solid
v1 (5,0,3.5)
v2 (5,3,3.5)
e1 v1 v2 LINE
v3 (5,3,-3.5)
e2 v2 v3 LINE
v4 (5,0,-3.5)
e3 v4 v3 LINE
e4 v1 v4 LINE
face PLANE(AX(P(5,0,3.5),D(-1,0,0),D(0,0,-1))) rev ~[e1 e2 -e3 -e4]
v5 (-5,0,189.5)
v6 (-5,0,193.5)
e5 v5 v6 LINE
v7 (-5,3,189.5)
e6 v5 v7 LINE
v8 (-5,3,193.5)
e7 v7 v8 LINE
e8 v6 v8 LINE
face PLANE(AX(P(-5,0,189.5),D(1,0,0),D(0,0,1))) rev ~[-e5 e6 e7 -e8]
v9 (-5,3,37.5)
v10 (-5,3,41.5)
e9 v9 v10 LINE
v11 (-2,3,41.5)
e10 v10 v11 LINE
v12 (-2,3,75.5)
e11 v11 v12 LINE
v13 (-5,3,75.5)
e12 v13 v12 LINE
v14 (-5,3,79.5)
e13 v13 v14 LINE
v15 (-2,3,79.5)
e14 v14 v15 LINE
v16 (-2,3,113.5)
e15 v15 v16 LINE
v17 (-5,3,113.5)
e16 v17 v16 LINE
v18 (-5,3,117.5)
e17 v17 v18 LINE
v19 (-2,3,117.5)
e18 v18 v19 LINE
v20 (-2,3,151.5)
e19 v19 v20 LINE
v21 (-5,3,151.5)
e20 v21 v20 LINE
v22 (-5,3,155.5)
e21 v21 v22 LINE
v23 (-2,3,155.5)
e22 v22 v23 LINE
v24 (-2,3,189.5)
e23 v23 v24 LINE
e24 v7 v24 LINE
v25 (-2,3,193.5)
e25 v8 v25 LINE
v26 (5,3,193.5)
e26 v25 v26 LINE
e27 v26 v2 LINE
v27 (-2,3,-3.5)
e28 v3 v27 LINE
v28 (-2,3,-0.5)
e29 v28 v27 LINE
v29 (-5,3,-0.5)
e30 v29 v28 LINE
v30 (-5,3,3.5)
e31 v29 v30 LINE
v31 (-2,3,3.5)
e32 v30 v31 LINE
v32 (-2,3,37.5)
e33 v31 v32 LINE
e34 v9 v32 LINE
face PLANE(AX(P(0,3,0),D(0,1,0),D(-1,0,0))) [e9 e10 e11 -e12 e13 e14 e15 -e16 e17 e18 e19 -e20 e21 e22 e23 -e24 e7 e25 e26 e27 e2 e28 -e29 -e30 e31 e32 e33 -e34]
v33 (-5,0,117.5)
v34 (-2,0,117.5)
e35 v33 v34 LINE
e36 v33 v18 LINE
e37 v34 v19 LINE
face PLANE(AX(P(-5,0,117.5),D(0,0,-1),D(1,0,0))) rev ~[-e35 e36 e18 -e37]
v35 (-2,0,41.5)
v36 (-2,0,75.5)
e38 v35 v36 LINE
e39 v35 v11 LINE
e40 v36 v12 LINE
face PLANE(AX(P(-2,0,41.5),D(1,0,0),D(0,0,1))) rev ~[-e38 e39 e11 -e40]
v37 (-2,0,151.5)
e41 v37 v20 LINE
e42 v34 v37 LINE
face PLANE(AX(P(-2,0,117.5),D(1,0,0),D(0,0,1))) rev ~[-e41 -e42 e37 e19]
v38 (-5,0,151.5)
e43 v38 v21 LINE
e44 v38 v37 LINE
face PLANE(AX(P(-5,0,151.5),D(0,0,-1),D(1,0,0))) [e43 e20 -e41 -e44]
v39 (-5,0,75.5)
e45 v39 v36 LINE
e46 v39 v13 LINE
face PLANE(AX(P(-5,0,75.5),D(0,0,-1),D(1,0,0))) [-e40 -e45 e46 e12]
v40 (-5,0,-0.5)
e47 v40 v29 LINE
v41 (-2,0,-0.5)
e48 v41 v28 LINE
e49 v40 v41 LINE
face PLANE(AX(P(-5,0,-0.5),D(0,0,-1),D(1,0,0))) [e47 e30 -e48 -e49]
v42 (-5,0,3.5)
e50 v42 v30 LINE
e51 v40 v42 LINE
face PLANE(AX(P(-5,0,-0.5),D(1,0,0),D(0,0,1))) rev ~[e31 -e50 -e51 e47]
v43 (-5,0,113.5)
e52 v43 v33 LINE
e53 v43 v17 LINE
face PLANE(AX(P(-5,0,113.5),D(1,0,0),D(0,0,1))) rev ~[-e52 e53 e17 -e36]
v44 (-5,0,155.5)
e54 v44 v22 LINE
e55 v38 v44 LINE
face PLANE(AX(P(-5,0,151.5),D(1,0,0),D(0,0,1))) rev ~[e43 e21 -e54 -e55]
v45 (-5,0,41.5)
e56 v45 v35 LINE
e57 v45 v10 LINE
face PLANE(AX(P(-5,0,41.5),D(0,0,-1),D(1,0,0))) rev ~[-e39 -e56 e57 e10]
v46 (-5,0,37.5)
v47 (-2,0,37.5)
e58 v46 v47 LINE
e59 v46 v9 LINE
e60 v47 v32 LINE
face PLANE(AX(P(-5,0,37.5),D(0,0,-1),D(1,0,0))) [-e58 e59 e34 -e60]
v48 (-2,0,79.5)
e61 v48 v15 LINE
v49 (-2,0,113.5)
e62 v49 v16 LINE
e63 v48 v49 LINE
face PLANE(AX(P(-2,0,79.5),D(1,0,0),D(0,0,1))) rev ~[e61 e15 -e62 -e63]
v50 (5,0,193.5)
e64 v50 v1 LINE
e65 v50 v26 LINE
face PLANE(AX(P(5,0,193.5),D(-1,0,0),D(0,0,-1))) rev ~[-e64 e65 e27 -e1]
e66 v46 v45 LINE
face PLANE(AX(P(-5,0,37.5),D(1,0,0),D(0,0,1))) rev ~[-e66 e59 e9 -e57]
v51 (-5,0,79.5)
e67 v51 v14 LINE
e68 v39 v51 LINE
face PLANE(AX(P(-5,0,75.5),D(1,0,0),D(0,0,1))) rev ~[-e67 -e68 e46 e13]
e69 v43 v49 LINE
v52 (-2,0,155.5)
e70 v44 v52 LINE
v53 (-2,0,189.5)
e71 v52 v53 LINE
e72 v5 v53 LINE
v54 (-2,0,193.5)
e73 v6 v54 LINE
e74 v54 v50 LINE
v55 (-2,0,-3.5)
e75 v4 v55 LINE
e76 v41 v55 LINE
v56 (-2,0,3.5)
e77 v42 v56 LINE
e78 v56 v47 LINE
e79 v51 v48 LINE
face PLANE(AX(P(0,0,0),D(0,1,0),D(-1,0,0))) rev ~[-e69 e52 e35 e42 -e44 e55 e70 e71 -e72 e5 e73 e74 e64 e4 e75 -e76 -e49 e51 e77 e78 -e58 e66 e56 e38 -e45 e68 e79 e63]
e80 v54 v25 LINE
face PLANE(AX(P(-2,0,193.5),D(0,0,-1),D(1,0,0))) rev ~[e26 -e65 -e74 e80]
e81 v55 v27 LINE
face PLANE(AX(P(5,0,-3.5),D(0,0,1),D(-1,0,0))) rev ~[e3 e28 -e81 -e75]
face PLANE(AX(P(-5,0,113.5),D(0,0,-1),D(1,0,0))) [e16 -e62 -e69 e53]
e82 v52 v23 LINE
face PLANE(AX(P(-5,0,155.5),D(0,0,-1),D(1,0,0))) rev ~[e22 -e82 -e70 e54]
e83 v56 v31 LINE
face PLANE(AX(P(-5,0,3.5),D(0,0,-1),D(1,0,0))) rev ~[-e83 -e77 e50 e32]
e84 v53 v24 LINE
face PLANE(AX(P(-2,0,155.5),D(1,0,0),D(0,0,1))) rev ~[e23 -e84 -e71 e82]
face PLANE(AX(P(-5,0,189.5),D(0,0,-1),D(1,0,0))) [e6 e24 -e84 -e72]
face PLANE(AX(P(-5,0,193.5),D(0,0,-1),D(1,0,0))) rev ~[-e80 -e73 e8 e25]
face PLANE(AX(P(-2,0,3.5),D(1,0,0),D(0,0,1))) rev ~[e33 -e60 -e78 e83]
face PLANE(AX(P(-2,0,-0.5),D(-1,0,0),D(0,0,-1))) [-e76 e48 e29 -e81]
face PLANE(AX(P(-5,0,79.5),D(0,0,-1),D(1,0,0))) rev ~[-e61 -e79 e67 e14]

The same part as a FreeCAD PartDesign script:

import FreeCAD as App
import Part
import Sketcher
from FreeCAD import Vector
Q = App.Units.Quantity


def add_polygon(sketch, points):
    """Adds a closed chain of lines whose ends are joined by coincident constraints."""
    first, n = sketch.GeometryCount, len(points)
    for a, b in zip(points, points[1:] + points[:1]):
        sketch.addGeometry(Part.LineSegment(App.Vector(*a, 0), App.Vector(*b, 0)), False)
    for i in range(n):
        sketch.addConstraint(Sketcher.Constraint("Coincident", first + i, 2, first + (i + 1) % n, 1))

doc = App.newDocument("Part")
body = doc.addObject("PartDesign::Body", "Body")

# Sketch on XZ plane
sketch1 = body.newObject("Sketcher::SketchObject", "Sketch")
sketch1.AttachmentSupport = (doc.getObject("XZ_Plane"), [""])
sketch1.MapMode = "FlatFace"
add_polygon(sketch1, [(5, 193.5), (5, -3.5), (-2, -3.5), (-2, -0.5), (-5, -0.5), (-5, 3.5), (-2, 3.5), (-2, 37.5), (-5, 37.5), (-5, 41.5), (-2, 41.5), (-2, 75.5), (-5, 75.5), (-5, 79.5), (-2, 79.5), (-2, 113.5), (-5, 113.5), (-5, 117.5), (-2, 117.5), (-2, 151.5), (-5, 151.5), (-5, 155.5), (-2, 155.5), (-2, 189.5), (-5, 189.5), (-5, 193.5)])  # lines 0-25
sketch1.addConstraint(Sketcher.Constraint("Vertical", 0))
sketch1.addConstraint(Sketcher.Constraint("Horizontal", 1))
sketch1.addConstraint(Sketcher.Constraint("Vertical", 2))
sketch1.addConstraint(Sketcher.Constraint("Horizontal", 3))
sketch1.addConstraint(Sketcher.Constraint("Vertical", 4))
sketch1.addConstraint(Sketcher.Constraint("Horizontal", 5))
sketch1.addConstraint(Sketcher.Constraint("Vertical", 6))
sketch1.addConstraint(Sketcher.Constraint("Horizontal", 7))
sketch1.addConstraint(Sketcher.Constraint("Vertical", 8))
sketch1.addConstraint(Sketcher.Constraint("Horizontal", 9))
sketch1.addConstraint(Sketcher.Constraint("Vertical", 10))
sketch1.addConstraint(Sketcher.Constraint("Horizontal", 11))
sketch1.addConstraint(Sketcher.Constraint("Vertical", 12))
sketch1.addConstraint(Sketcher.Constraint("Horizontal", 13))
sketch1.addConstraint(Sketcher.Constraint("Vertical", 14))
sketch1.addConstraint(Sketcher.Constraint("Horizontal", 15))
sketch1.addConstraint(Sketcher.Constraint("Vertical", 16))
sketch1.addConstraint(Sketcher.Constraint("Horizontal", 17))
sketch1.addConstraint(Sketcher.Constraint("Vertical", 18))
sketch1.addConstraint(Sketcher.Constraint("Horizontal", 19))
sketch1.addConstraint(Sketcher.Constraint("Vertical", 20))
sketch1.addConstraint(Sketcher.Constraint("Horizontal", 21))
sketch1.addConstraint(Sketcher.Constraint("Vertical", 22))
sketch1.addConstraint(Sketcher.Constraint("Horizontal", 23))
sketch1.addConstraint(Sketcher.Constraint("Vertical", 24))
sketch1.addConstraint(Sketcher.Constraint("Horizontal", 25))
sketch1.addConstraint(Sketcher.Constraint("Symmetric", 0, 2, 4, 2, -1, 1))
sketch1.addConstraint(Sketcher.Constraint("Vertical", 2, 2, 5, 2))
sketch1.addConstraint(Sketcher.Constraint("Vertical", 4, 2, 7, 2))
sketch1.addConstraint(Sketcher.Constraint("Vertical", 6, 2, 9, 2))
sketch1.addConstraint(Sketcher.Constraint("Vertical", 8, 2, 11, 2))
sketch1.addConstraint(Sketcher.Constraint("Vertical", 10, 2, 13, 2))
sketch1.addConstraint(Sketcher.Constraint("Vertical", 12, 2, 15, 2))
sketch1.addConstraint(Sketcher.Constraint("Vertical", 14, 2, 17, 2))
sketch1.addConstraint(Sketcher.Constraint("Vertical", 16, 2, 19, 2))
sketch1.addConstraint(Sketcher.Constraint("Vertical", 18, 2, 21, 2))
sketch1.addConstraint(Sketcher.Constraint("Vertical", 20, 2, 23, 2))
sketch1.addConstraint(Sketcher.Constraint("Equal", 23, 2))
sketch1.addConstraint(Sketcher.Constraint("Equal", 4, 8))
sketch1.addConstraint(Sketcher.Constraint("Equal", 6, 10))
sketch1.addConstraint(Sketcher.Constraint("Equal", 8, 12))
sketch1.addConstraint(Sketcher.Constraint("Equal", 10, 14))
sketch1.addConstraint(Sketcher.Constraint("Equal", 12, 16))
sketch1.addConstraint(Sketcher.Constraint("Equal", 14, 18))
sketch1.addConstraint(Sketcher.Constraint("Equal", 16, 20))
sketch1.addConstraint(Sketcher.Constraint("Equal", 18, 22))
sketch1.addConstraint(Sketcher.Constraint("Equal", 20, 24))
sketch1.addConstraint(Sketcher.Constraint("DistanceX", 3, 2, 3, 1, Q("3 mm")))
sketch1.addConstraint(Sketcher.Constraint("DistanceY", 2, 2, 6, 2, Q("38 mm")))
sketch1.addConstraint(Sketcher.Constraint("DistanceX", 1, 2, 1, 1, Q("7 mm")))
sketch1.addConstraint(Sketcher.Constraint("DistanceY", 0, 2, 0, 1, Q("197 mm")))
pad1 = body.newObject("PartDesign::Pad", "Pad")
pad1.Profile = sketch1
pad1.Length = 3
pad1.Reversed = True

doc.recompute()
